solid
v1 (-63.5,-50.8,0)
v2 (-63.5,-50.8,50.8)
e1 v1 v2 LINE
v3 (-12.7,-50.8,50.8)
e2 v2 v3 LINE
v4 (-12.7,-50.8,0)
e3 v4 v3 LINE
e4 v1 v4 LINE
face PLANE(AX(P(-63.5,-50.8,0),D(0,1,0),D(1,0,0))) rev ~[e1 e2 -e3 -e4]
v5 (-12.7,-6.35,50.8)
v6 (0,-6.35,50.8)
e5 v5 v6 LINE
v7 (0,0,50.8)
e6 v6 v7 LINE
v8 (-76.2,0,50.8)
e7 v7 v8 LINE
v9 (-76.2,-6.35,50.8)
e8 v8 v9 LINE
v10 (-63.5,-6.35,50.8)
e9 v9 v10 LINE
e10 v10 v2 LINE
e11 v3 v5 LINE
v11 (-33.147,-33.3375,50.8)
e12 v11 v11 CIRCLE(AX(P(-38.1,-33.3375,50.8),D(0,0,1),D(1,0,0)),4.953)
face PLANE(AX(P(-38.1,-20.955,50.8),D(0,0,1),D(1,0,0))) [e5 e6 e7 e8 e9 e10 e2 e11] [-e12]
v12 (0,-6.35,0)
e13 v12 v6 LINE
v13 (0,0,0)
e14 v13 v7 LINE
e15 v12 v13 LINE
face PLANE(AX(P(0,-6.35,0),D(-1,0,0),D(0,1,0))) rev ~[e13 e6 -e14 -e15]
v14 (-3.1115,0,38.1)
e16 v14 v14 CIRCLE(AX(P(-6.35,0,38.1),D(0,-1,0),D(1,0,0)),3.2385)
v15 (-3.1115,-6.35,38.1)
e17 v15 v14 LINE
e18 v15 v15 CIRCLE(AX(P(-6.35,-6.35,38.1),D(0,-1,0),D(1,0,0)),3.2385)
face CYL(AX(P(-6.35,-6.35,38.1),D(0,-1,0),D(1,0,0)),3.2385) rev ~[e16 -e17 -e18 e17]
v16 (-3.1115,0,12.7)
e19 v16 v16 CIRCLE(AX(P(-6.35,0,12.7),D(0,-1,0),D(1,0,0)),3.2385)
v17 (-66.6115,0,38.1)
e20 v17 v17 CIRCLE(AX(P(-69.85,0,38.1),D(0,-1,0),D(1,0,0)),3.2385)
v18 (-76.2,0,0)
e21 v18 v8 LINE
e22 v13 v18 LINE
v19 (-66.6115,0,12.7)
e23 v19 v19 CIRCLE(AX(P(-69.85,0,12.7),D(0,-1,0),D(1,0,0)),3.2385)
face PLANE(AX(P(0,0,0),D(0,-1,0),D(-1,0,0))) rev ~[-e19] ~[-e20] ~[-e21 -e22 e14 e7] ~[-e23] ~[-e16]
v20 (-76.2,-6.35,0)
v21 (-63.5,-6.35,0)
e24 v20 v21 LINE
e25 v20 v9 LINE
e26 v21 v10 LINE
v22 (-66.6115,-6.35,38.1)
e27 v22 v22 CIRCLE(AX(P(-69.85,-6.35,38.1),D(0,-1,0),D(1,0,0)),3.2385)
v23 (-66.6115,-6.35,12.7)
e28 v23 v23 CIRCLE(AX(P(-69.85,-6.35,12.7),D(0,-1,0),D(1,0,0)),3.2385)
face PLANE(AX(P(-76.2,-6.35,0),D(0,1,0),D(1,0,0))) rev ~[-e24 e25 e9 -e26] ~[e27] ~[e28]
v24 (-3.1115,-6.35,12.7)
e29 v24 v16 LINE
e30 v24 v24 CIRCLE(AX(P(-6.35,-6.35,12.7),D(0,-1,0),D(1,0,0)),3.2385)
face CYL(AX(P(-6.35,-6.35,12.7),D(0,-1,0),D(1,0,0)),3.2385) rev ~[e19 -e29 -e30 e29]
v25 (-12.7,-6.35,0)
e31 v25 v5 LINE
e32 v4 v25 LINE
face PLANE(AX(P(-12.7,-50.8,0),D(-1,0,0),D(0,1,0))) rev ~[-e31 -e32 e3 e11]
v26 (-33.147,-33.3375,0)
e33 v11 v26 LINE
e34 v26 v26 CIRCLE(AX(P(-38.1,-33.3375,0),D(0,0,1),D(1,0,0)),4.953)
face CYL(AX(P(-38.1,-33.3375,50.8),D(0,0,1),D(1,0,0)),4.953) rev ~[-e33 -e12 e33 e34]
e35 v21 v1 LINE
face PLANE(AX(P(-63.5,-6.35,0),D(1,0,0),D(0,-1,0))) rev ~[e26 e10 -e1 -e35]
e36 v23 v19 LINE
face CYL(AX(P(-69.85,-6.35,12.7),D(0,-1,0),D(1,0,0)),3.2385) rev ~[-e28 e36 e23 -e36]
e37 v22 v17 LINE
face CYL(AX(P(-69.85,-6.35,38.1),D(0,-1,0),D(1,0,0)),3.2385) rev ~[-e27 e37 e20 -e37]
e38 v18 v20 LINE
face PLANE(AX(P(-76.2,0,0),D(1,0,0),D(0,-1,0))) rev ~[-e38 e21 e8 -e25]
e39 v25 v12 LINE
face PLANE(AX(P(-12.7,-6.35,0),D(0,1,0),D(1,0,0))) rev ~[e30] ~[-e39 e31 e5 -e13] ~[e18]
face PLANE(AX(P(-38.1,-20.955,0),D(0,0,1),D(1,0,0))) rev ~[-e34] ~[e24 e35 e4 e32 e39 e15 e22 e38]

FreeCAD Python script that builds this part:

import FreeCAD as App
import Part
import Sketcher
from FreeCAD import Vector
Q = App.Units.Quantity

doc = App.newDocument("Part")
body = doc.addObject("PartDesign::Body", "Body")

sketch1 = body.newObject("Sketcher::SketchObject", "Sketch")
sketch1.AttachmentSupport = (doc.getObject("XY_Plane"), [""])
sketch1.MapMode = "FlatFace"
sketch1.addGeometry(Part.LineSegment(Vector(0, -6, 0), Vector(0, 0, 0)), False)
sketch1.addGeometry(Part.LineSegment(Vector(0, 0, 0), Vector(-76, 0, 0)), False)
sketch1.addGeometry(Part.LineSegment(Vector(-76, 0, 0), Vector(-76, -6, 0)), False)
sketch1.addGeometry(Part.LineSegment(Vector(-76, -6, 0), Vector(-64, -6, 0)), False)
sketch1.addGeometry(Part.LineSegment(Vector(-64, -6, 0), Vector(-64, -51, 0)), False)
sketch1.addGeometry(Part.LineSegment(Vector(-64, -51, 0), Vector(-13, -51, 0)), False)
sketch1.addGeometry(Part.LineSegment(Vector(-13, -51, 0), Vector(-13, -6, 0)), False)
sketch1.addGeometry(Part.LineSegment(Vector(-13, -6, 0), Vector(0, -6, 0)), False)
sketch1.addConstraint(Sketcher.Constraint("Coincident", 0, 2, 1, 1))
sketch1.addConstraint(Sketcher.Constraint("Coincident", 1, 2, 2, 1))
sketch1.addConstraint(Sketcher.Constraint("Coincident", 2, 2, 3, 1))
sketch1.addConstraint(Sketcher.Constraint("Coincident", 3, 2, 4, 1))
sketch1.addConstraint(Sketcher.Constraint("Coincident", 4, 2, 5, 1))
sketch1.addConstraint(Sketcher.Constraint("Coincident", 5, 2, 6, 1))
sketch1.addConstraint(Sketcher.Constraint("Coincident", 6, 2, 7, 1))
sketch1.addConstraint(Sketcher.Constraint("Coincident", 7, 2, 0, 1))
sketch1.addConstraint(Sketcher.Constraint("Vertical", 0))
sketch1.addConstraint(Sketcher.Constraint("Horizontal", 1))
sketch1.addConstraint(Sketcher.Constraint("Vertical", 2))
sketch1.addConstraint(Sketcher.Constraint("Horizontal", 3))
sketch1.addConstraint(Sketcher.Constraint("Vertical", 4))
sketch1.addConstraint(Sketcher.Constraint("Horizontal", 5))
sketch1.addConstraint(Sketcher.Constraint("Vertical", 6))
sketch1.addConstraint(Sketcher.Constraint("Horizontal", 7))
sketch1.addConstraint(Sketcher.Constraint("Coincident", 0, 2, -1, 1))
sketch1.addConstraint(Sketcher.Constraint("Horizontal", 3, 2, 6, 2))
sketch1.addConstraint(Sketcher.Constraint("Equal", 3, 7))
sketch1.addConstraint(Sketcher.Constraint("DistanceX", 1, 2, 1, 1, Q("3 in")))
sketch1.addConstraint(Sketcher.Constraint("DistanceX", 5, 1, 5, 2, Q("2 in")))
sketch1.addConstraint(Sketcher.Constraint("DistanceY", 4, 2, -1, 1, Q("2 in")))
sketch1.addConstraint(Sketcher.Constraint("DistanceY", 0, 1, 0, 2, Q("0.25 in")))
pad1 = body.newObject("PartDesign::Pad", "Pad")
pad1.Profile = sketch1
pad1.Length = Q("2 in")

sketch2 = body.newObject("Sketcher::SketchObject", "Sketch001")
sketch2.AttachmentSupport = (doc.getObject("XY_Plane"), [""])
sketch2.MapMode = "FlatFace"
sketch2.AttachmentOffset = App.Placement(Vector(0, 0, 2 * 25.4), App.Rotation())
sketch2.addGeometry(Part.Circle(Vector(-38.1, -33.3, 0), Vector(0, 0, 1), 5), False)
sketch2.addConstraint(Sketcher.Constraint("Diameter", 0, Q("0.39 in")))
sketch2.addConstraint(Sketcher.Constraint("DistanceX", 0, 3, -1, 1, Q("1.5 in")))
sketch2.addConstraint(Sketcher.Constraint("DistanceY", 0, 3, -1, 1, Q("1.3125 in")))
pocket1 = body.newObject("PartDesign::Pocket", "Pocket")
pocket1.Profile = sketch2
pocket1.Length = Q("2 in")

sketch3 = body.newObject("Sketcher::SketchObject", "Sketch002")
sketch3.AttachmentSupport = (doc.getObject("XZ_Plane"), [""])
sketch3.MapMode = "FlatFace"
sketch3.AttachmentOffset = App.Placement(Vector(0, 0, 0.25 * 25.4), App.Rotation())
sketch3.addGeometry(Part.Circle(Vector(-69.8, 12.7, 0), Vector(0, 0, 1), 3.2), False)
sketch3.addGeometry(Part.Circle(Vector(-69.8, 38.1, 0), Vector(0, 0, 1), 3.2), False)
sketch3.addGeometry(Part.Circle(Vector(-6.3, 12.7, 0), Vector(0, 0, 1), 3.2), False)
sketch3.addGeometry(Part.Circle(Vector(-6.3, 38.1, 0), Vector(0, 0, 1), 3.2), False)
sketch3.addConstraint(Sketcher.Constraint("Equal", 0, 1))
sketch3.addConstraint(Sketcher.Constraint("Equal", 1, 2))
sketch3.addConstraint(Sketcher.Constraint("Equal", 2, 3))
sketch3.addConstraint(Sketcher.Constraint("Horizontal", 0, 3, 2, 3))
sketch3.addConstraint(Sketcher.Constraint("Horizontal", 1, 3, 3, 3))
sketch3.addConstraint(Sketcher.Constraint("Vertical", 0, 3, 1, 3))
sketch3.addConstraint(Sketcher.Constraint("Vertical", 2, 3, 3, 3))
sketch3.addConstraint(Sketcher.Constraint("Diameter", 0, Q("0.255 in")))
sketch3.addConstraint(Sketcher.Constraint("DistanceY", 0, 3, 1, 3, Q("1 in")))
sketch3.addConstraint(Sketcher.Constraint("DistanceY", -1, 1, 0, 3, Q("0.5 in")))
sketch3.addConstraint(Sketcher.Constraint("DistanceX", 0, 3, 2, 3, Q("2.5 in")))
sketch3.addConstraint(Sketcher.Constraint("DistanceX", 0, 3, -1, 1, Q("2.75 in")))
pocket2 = body.newObject("PartDesign::Pocket", "Pocket001")
pocket2.Profile = sketch3
pocket2.Length = Q("1 in")

doc.recompute()
